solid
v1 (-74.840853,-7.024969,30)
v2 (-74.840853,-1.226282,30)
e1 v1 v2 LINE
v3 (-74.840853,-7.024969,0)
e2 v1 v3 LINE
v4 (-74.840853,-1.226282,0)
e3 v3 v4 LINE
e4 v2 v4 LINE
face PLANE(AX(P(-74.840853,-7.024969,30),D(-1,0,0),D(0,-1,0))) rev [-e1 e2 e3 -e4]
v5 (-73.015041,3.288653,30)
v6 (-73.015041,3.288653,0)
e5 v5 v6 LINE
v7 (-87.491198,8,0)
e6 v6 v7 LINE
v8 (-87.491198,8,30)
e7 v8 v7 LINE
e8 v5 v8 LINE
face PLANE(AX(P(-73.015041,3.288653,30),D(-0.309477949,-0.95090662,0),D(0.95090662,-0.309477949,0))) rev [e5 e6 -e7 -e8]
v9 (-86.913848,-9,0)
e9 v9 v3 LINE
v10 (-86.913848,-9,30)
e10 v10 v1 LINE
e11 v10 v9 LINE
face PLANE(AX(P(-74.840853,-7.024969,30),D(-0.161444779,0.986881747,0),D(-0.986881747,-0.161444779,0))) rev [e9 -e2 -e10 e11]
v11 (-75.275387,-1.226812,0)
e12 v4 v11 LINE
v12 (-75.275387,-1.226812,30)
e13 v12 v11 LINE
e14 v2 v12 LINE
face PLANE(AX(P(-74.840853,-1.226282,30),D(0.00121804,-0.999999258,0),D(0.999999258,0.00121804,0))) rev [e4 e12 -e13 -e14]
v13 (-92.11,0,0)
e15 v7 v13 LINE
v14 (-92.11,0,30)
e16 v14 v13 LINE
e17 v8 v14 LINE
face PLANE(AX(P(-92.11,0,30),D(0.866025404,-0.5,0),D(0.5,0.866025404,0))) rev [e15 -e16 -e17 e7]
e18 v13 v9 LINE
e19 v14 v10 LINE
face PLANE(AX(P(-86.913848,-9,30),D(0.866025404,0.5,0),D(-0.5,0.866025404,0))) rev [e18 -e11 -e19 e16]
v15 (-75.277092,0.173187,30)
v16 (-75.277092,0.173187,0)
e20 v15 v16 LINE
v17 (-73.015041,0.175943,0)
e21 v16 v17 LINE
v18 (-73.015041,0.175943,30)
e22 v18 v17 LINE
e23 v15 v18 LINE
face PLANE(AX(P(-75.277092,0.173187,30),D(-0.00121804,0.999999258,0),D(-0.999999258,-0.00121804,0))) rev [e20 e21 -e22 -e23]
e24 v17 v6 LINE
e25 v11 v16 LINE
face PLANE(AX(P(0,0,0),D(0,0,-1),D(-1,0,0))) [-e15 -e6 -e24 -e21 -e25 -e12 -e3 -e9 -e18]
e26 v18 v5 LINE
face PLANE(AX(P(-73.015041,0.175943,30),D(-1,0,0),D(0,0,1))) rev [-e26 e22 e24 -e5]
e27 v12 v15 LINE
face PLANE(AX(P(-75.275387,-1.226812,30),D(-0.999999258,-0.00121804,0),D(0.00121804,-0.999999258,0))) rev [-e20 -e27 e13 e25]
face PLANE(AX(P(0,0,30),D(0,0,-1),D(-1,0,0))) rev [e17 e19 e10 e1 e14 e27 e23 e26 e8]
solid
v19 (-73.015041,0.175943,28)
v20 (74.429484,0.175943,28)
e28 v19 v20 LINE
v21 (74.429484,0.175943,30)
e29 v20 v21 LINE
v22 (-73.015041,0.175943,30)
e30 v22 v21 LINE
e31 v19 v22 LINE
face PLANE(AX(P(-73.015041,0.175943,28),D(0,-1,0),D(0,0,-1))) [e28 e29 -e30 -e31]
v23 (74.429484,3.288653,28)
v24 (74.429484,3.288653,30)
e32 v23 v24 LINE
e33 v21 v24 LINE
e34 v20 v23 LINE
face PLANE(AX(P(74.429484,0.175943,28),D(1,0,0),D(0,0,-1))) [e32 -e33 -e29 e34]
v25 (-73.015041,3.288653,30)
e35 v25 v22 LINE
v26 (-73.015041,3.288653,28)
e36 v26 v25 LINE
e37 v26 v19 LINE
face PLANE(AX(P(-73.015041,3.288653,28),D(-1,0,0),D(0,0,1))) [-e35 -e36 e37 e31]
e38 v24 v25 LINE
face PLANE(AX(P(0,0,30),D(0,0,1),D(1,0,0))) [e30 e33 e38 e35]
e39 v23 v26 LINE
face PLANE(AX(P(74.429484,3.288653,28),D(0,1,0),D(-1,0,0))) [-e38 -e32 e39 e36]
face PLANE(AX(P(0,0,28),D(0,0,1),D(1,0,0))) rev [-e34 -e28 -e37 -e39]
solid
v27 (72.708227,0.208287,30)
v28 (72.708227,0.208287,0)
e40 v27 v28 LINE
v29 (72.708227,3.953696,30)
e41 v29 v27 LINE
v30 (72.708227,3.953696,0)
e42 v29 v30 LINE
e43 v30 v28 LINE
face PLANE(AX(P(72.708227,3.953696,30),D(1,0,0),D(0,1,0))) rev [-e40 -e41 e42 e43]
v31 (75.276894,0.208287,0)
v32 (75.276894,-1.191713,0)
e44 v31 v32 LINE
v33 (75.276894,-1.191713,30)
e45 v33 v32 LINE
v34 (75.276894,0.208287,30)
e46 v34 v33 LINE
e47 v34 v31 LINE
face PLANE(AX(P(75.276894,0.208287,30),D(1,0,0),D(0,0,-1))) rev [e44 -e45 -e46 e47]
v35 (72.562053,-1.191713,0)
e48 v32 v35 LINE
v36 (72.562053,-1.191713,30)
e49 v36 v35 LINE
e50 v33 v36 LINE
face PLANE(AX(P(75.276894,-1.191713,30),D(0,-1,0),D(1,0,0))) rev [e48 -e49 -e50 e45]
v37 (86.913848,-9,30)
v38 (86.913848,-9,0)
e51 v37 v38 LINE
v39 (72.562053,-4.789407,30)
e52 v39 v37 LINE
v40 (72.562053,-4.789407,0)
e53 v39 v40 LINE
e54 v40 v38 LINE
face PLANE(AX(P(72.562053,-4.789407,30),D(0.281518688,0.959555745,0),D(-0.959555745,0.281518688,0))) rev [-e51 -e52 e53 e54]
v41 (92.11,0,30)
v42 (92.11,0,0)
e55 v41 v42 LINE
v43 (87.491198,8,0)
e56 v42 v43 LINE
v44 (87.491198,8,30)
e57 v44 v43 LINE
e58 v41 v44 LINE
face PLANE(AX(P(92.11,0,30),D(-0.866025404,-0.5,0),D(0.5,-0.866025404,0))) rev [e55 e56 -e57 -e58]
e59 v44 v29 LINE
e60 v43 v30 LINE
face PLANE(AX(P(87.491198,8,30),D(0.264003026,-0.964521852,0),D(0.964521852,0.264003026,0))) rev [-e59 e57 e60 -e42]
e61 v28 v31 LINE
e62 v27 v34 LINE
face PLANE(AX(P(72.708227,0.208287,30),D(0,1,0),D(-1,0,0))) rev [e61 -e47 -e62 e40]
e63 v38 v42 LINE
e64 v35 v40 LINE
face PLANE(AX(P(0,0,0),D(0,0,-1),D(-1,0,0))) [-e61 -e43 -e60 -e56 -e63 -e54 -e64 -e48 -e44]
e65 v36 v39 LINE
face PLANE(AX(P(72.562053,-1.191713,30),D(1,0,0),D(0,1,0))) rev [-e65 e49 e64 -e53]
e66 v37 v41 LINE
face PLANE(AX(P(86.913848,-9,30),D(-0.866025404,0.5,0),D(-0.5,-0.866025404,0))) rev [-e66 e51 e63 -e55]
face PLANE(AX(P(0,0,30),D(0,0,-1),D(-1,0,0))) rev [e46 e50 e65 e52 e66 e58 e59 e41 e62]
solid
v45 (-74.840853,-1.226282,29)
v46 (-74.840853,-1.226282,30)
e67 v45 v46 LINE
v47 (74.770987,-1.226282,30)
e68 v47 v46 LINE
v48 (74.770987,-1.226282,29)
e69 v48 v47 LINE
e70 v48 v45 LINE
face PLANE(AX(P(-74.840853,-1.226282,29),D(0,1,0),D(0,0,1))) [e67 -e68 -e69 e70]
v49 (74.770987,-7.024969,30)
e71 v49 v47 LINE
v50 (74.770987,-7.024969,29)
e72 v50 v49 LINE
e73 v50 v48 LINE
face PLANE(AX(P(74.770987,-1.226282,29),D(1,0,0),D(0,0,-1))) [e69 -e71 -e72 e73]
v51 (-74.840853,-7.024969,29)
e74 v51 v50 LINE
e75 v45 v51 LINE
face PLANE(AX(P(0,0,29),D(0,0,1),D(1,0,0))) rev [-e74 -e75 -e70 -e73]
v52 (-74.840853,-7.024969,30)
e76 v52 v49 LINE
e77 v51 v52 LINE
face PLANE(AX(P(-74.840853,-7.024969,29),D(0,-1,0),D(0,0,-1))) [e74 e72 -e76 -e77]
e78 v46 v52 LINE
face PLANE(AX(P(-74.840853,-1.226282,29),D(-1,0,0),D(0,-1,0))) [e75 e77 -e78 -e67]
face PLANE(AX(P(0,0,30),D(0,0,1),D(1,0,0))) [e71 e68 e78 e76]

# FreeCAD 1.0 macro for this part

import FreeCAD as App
import Part
import Sketcher

V = App.Vector
Q = App.Units.Quantity


def add_polygon(sketch, points):
    """Adds a closed chain of lines whose ends are joined by coincident constraints."""
    first, n = sketch.GeometryCount, len(points)
    for a, b in zip(points, points[1:] + points[:1]):
        sketch.addGeometry(Part.LineSegment(App.Vector(*a, 0), App.Vector(*b, 0)), False)
    for i in range(n):
        sketch.addConstraint(Sketcher.Constraint("Coincident", first + i, 2, first + (i + 1) % n, 1))

doc = App.newDocument("Part")
body = doc.addObject("PartDesign::Body", "Body")

sketch1 = doc.addObject("Sketcher::SketchObject", "Sketch")
body.addObject(sketch1)
sketch1.AttachmentSupport = (doc.XY_Plane, [""])
sketch1.MapMode = "FlatFace"
add_polygon(sketch1, [(-87.491198, 8), (-92.11, 0), (-86.913848, -9), (-74.840853, -7.024969), (-74.840853, -1.226282), (-75.275387, -1.226812), (-75.277092, 0.173187), (-73.015041, 0.175943), (-73.015041, 3.288653)])
sketch1.addConstraint([
    Sketcher.Constraint("Vertical", 3),
    Sketcher.Constraint("Vertical", 7),
    Sketcher.Constraint("PointOnObject", 0, 2, -1),
    Sketcher.Constraint("Perpendicular", 4, 5),
    Sketcher.Constraint("Perpendicular", 5, 6),
    Sketcher.Constraint("Angle", 0, Q("-120 deg")),
    Sketcher.Constraint("Angle", 1, Q("-60 deg")),
    Sketcher.Constraint("DistanceY", 1, 2, -1, 1, 9.0),
    Sketcher.Constraint("DistanceY", -1, 1, 8, 2, 8.0),
    Sketcher.Constraint("Distance", 5, 1.4),
    Sketcher.Constraint("DistanceX", 0, 2, -1, 1, 92.11),
    Sketcher.Constraint("DistanceY", 7, 1, 7, 2, 3.11271),
    Sketcher.Constraint("Distance", 8, 15.223532),
    Sketcher.Constraint("DistanceY", 3, 1, 3, 2, 5.798687),
    Sketcher.Constraint("DistanceY", 2, 2, -1, 1, 7.024969),
    Sketcher.Constraint("DistanceY", 4, 2, -1, 1, 1.226812),
    Sketcher.Constraint("DistanceX", 5, 2, -1, 1, 75.277092),
    Sketcher.Constraint("DistanceX", 5, 2, 3, 2, 0.436239),
])
pad1 = doc.addObject("PartDesign::Pad", "Pad")
body.addObject(pad1)
pad1.Profile = sketch1
pad1.Length = 30
body2 = doc.addObject("PartDesign::Body", "Body001")

sketch2 = doc.addObject("Sketcher::SketchObject", "Sketch001")
body2.addObject(sketch2)
sketch2.AttachmentSupport = (doc.getObject("XY_Plane001"), [""])
sketch2.MapMode = "FlatFace"
add_polygon(sketch2, [(92.11, 0), (87.491198, 8), (72.708227, 3.953696), (72.708227, 0.208287), (75.276894, 0.208287), (75.276894, -1.191713), (72.562053, -1.191713), (72.562053, -4.789407), (86.913848, -9)])
sketch2.addConstraint([
    Sketcher.Constraint("Vertical", 2),
    Sketcher.Constraint("Horizontal", 3),
    Sketcher.Constraint("Vertical", 4),
    Sketcher.Constraint("Horizontal", 5),
    Sketcher.Constraint("Vertical", 6),
    Sketcher.Constraint("PointOnObject", 8, 2, -1),
    Sketcher.Constraint("Angle", 0, Q("120 deg")),
    Sketcher.Constraint("Angle", 8, Q("60 deg")),
    Sketcher.Constraint("DistanceY", 4, 2, 4, 1, 1.4),
    Sketcher.Constraint("DistanceY", -1, 1, 0, 2, 8.0),
    Sketcher.Constraint("DistanceY", 7, 2, -1, 1, 9.0),
    Sketcher.Constraint("DistanceX", -1, 1, 8, 2, 92.11),
    Sketcher.Constraint("DistanceX", 5, 2, 5, 1, 2.714841),
    Sketcher.Constraint("DistanceY", 2, 2, 2, 1, 3.745409),
    Sketcher.Constraint("DistanceX", 3, 1, 3, 2, 2.568667),
    Sketcher.Constraint("DistanceY", 6, 2, 6, 1, 3.597694),
    Sketcher.Constraint("DistanceX", 1, 2, 0, 2, 14.78297),
    Sketcher.Constraint("Distance", 1, 15.326735),
])
pad2 = doc.addObject("PartDesign::Pad", "Pad001")
body2.addObject(pad2)
pad2.Profile = sketch2
pad2.Length = 30
body3 = doc.addObject("PartDesign::Body", "Body002")

sketch3 = doc.addObject("Sketcher::SketchObject", "Sketch002")
body3.addObject(sketch3)
sketch3.AttachmentSupport = (doc.getObject("XY_Plane002"), [""])
sketch3.MapMode = "FlatFace"
sketch3.AttachmentOffset = App.Placement(V(0, 0, 30), App.Rotation())
add_polygon(sketch3, [(-73.015041, 3.288653), (-73.015041, 0.175943), (74.429484, 0.175943), (74.429484, 3.288653)])
sketch3.addConstraint([
    Sketcher.Constraint("Vertical", 0),
    Sketcher.Constraint("Horizontal", 1),
    Sketcher.Constraint("Vertical", 2),
    Sketcher.Constraint("Horizontal", 3),
    Sketcher.Constraint("DistanceY", 0, 2, 0, 1, 3.11271),
    Sketcher.Constraint("DistanceX", 1, 1, 1, 2, 147.444525),
    Sketcher.Constraint("DistanceX", 0, 2, -1, 1, 73.015041),
    Sketcher.Constraint("DistanceY", -1, 1, 0, 2, 0.175943),
])
pad3 = doc.addObject("PartDesign::Pad", "Pad002")
body3.addObject(pad3)
pad3.Profile = sketch3
pad3.Length = 2
pad3.Reversed = True
body4 = doc.addObject("PartDesign::Body", "Body003")

sketch4 = doc.addObject("Sketcher::SketchObject", "Sketch003")
body4.addObject(sketch4)
sketch4.AttachmentSupport = (doc.getObject("XY_Plane003"), [""])
sketch4.MapMode = "FlatFace"
sketch4.AttachmentOffset = App.Placement(V(0, 0, 30), App.Rotation())
add_polygon(sketch4, [(-74.840853, -1.226282), (-74.840853, -7.024969), (74.770987, -7.024969), (74.770987, -1.226282)])
sketch4.addConstraint([
    Sketcher.Constraint("Vertical", 0),
    Sketcher.Constraint("Horizontal", 1),
    Sketcher.Constraint("Vertical", 2),
    Sketcher.Constraint("Horizontal", 3),
    Sketcher.Constraint("DistanceX", 1, 1, 1, 2, 149.61184),
    Sketcher.Constraint("DistanceY", 0, 2, 0, 1, 5.798687),
    Sketcher.Constraint("DistanceY", 0, 2, -1, 1, 7.024969),
    Sketcher.Constraint("DistanceX", 0, 2, -1, 1, 74.840853),
])
pad4 = doc.addObject("PartDesign::Pad", "Pad003")
body4.addObject(pad4)
pad4.Profile = sketch4
pad4.Length = 1
pad4.Reversed = True

doc.recompute()
